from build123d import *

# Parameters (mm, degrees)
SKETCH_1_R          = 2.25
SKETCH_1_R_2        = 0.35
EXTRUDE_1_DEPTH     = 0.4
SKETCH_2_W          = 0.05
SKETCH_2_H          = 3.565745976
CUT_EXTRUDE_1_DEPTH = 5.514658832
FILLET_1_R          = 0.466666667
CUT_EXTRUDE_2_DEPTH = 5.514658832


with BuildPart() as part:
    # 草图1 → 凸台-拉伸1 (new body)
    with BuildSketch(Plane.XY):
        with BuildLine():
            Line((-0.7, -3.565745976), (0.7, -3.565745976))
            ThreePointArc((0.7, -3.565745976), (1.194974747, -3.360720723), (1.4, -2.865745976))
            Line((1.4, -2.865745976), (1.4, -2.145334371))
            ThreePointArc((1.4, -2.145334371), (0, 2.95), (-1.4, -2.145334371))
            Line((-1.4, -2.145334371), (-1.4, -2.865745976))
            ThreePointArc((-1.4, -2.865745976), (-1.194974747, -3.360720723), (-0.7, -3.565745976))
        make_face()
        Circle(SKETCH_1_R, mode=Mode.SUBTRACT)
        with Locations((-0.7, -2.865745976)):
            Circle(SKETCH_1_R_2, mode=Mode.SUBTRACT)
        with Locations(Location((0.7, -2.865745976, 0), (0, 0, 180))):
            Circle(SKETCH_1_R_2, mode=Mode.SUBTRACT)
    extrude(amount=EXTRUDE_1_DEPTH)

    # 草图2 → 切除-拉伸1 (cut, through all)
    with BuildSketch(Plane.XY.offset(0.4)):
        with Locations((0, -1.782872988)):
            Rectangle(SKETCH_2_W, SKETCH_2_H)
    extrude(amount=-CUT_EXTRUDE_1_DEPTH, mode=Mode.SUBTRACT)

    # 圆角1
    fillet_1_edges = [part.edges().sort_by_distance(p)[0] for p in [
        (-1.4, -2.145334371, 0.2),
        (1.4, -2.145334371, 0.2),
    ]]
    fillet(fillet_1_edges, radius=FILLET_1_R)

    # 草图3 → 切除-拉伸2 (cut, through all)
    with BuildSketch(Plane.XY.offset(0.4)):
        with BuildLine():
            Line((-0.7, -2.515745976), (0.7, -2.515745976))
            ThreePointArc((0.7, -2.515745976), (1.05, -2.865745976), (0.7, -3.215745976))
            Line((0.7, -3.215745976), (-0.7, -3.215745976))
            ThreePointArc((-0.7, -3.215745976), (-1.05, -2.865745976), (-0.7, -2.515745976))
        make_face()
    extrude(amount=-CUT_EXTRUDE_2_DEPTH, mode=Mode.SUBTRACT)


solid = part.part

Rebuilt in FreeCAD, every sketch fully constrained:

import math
import FreeCAD as App
import Part
import Sketcher

V = App.Vector
Q = App.Units.Quantity


def edges_at(feature, points):
    """Names of the edges that pass closest to the given points."""
    edges = feature.Shape.Edges
    near = lambda p: min(range(len(edges)), key=lambda i: edges[i].distToShape(Part.Vertex(*p))[0])
    return sorted({f"Edge{near(p) + 1}" for p in points})


def add_polygon(sketch, points):
    """Adds a closed chain of lines whose ends are joined by coincident constraints."""
    first, n = sketch.GeometryCount, len(points)
    for a, b in zip(points, points[1:] + points[:1]):
        sketch.addGeometry(Part.LineSegment(App.Vector(*a, 0), App.Vector(*b, 0)), False)
    for i in range(n):
        sketch.addConstraint(Sketcher.Constraint("Coincident", first + i, 2, first + (i + 1) % n, 1))

doc = App.newDocument("Part")
body = doc.addObject("PartDesign::Body", "Body")

# Sketch on XY plane
sketch1 = body.newObject("Sketcher::SketchObject", "Sketch")
sketch1.AttachmentSupport = (doc.getObject("XY_Plane"), [""])
sketch1.MapMode = "FlatFace"
sketch1.addGeometry([
    Part.LineSegment(V(-0.7, -3.565746, 0), V(0.7, -3.565746, 0)),  # 0
    Part.ArcOfCircle(Part.Circle(V(0.7, -2.865746, 0), V(0, 0, 1), 0.7), math.radians(-90), math.radians(0)),  # 1
    Part.LineSegment(V(1.4, -2.865746, 0), V(1.4, -2.145334, 0)),  # 2
    Part.ArcOfCircle(Part.Circle(V(0, 0.21, 0), V(0, 0, 1), 2.74), math.radians(-59.272943), math.radians(239.272943)),  # 3
    Part.LineSegment(V(-1.4, -2.145334, 0), V(-1.4, -2.865746, 0)),  # 4
    Part.ArcOfCircle(Part.Circle(V(-0.7, -2.865746, 0), V(0, 0, 1), 0.7), math.radians(180), math.radians(270)),  # 5
    Part.Circle(V(-0.7, -2.865746, 0), V(0, 0, 1), 0.35),  # 6
    Part.Circle(V(0.7, -2.865746, 0), V(0, 0, 1), 0.35),  # 7
    Part.Circle(V(0, 0, 0), V(0, 0, 1), 2.25),  # 8
], False)
sketch1.addConstraint([
    Sketcher.Constraint("Tangent", 0, 2, 1, 1),
    Sketcher.Constraint("Tangent", 1, 2, 2, 1),
    Sketcher.Constraint("Coincident", 2, 2, 3, 1),
    Sketcher.Constraint("Coincident", 3, 2, 4, 1),
    Sketcher.Constraint("Tangent", 4, 2, 5, 1),
    Sketcher.Constraint("Tangent", 5, 2, 0, 1),
    Sketcher.Constraint("Horizontal", 0),
    Sketcher.Constraint("Vertical", 2),
    Sketcher.Constraint("Vertical", 4),
    Sketcher.Constraint("Coincident", 8, 3, -1, 1),
    Sketcher.Constraint("Coincident", 6, 3, 5, 3),
    Sketcher.Constraint("Coincident", 7, 3, 1, 3),
    Sketcher.Constraint("Equal", 1, 5),
    Sketcher.Constraint("Equal", 6, 7),
    Sketcher.Constraint("Symmetric", 2, 2, 3, 2, -2),
    Sketcher.Constraint("Diameter", 6, Q("0.7 mm")),
    Sketcher.Constraint("Diameter", 8, Q("4.5 mm")),
    Sketcher.Constraint("Radius", 1, Q("0.7 mm")),
    Sketcher.Constraint("Radius", 3, Q("2.74 mm")),
    Sketcher.Constraint("DistanceX", 0, 1, 0, 2, Q("1.4 mm")),
    Sketcher.Constraint("DistanceY", -1, 1, 3, 3, Q("0.21 mm")),
    Sketcher.Constraint("DistanceY", 2, 1, 2, 2, Q("0.720412 mm")),
])
pad1 = body.newObject("PartDesign::Pad", "Pad")
pad1.Profile = sketch1
pad1.Length = 0.4

# Sketch on XY plane
sketch2 = body.newObject("Sketcher::SketchObject", "Sketch001")
sketch2.AttachmentSupport = (doc.getObject("XY_Plane"), [""])
sketch2.MapMode = "FlatFace"
sketch2.AttachmentOffset = App.Placement(V(0, 0, 0.4), App.Rotation())
add_polygon(sketch2, [(-0.025, 0), (-0.025, -3.565746), (0.025, -3.565746), (0.025, 0)])  # lines 0-3
sketch2.addConstraint([
    Sketcher.Constraint("Vertical", 0),
    Sketcher.Constraint("Horizontal", 1),
    Sketcher.Constraint("Vertical", 2),
    Sketcher.Constraint("Horizontal", 3),
    Sketcher.Constraint("Symmetric", 2, 2, 3, 2, -1, 1),
    Sketcher.Constraint("DistanceX", 1, 1, 1, 2, Q("0.05 mm")),
    Sketcher.Constraint("DistanceY", 0, 2, 0, 1, Q("3.565746 mm")),
])
pocket1 = body.newObject("PartDesign::Pocket", "Pocket")
pocket1.Profile = sketch2
pocket1.Type = "ThroughAll"
doc.recompute()

fillet = body.newObject("PartDesign::Fillet", "Fillet")
fillet.Base = (pocket1, edges_at(pocket1, [(-1.4, -2.145, 0.2), (1.4, -2.145, 0.2)]))
fillet.Radius = 0.466667

# Sketch on XY plane
sketch3 = body.newObject("Sketcher::SketchObject", "Sketch002")
sketch3.AttachmentSupport = (doc.getObject("XY_Plane"), [""])
sketch3.MapMode = "FlatFace"
sketch3.AttachmentOffset = App.Placement(V(0, 0, 0.4), App.Rotation())
sketch3.addGeometry([
    Part.LineSegment(V(0.7, -2.515746, 0), V(-0.7, -2.515746, 0)),
    Part.ArcOfCircle(Part.Circle(V(-0.7, -2.865746, 0), V(0, 0, 1), 0.35), math.radians(90), math.radians(270)),
    Part.LineSegment(V(-0.7, -3.215746, 0), V(0.7, -3.215746, 0)),
    Part.ArcOfCircle(Part.Circle(V(0.7, -2.865746, 0), V(0, 0, 1), 0.35), math.radians(-90), math.radians(90)),
], False)
sketch3.addConstraint([
    Sketcher.Constraint("Tangent", 0, 2, 1, 1),
    Sketcher.Constraint("Tangent", 1, 2, 2, 1),
    Sketcher.Constraint("Tangent", 2, 2, 3, 1),
    Sketcher.Constraint("Tangent", 3, 2, 0, 1),
    Sketcher.Constraint("Horizontal", 0),
    Sketcher.Constraint("Horizontal", 2),
    Sketcher.Constraint("Radius", 1, Q("0.35 mm")),
    Sketcher.Constraint("DistanceX", 0, 2, 0, 1, Q("1.4 mm")),
    Sketcher.Constraint("DistanceX", 1, 3, -1, 1, Q("0.7 mm")),
    Sketcher.Constraint("DistanceY", 1, 3, -1, 1, Q("2.865746 mm")),
])
pocket2 = body.newObject("PartDesign::Pocket", "Pocket001")
pocket2.Profile = sketch3
pocket2.Type = "ThroughAll"

doc.recompute()
